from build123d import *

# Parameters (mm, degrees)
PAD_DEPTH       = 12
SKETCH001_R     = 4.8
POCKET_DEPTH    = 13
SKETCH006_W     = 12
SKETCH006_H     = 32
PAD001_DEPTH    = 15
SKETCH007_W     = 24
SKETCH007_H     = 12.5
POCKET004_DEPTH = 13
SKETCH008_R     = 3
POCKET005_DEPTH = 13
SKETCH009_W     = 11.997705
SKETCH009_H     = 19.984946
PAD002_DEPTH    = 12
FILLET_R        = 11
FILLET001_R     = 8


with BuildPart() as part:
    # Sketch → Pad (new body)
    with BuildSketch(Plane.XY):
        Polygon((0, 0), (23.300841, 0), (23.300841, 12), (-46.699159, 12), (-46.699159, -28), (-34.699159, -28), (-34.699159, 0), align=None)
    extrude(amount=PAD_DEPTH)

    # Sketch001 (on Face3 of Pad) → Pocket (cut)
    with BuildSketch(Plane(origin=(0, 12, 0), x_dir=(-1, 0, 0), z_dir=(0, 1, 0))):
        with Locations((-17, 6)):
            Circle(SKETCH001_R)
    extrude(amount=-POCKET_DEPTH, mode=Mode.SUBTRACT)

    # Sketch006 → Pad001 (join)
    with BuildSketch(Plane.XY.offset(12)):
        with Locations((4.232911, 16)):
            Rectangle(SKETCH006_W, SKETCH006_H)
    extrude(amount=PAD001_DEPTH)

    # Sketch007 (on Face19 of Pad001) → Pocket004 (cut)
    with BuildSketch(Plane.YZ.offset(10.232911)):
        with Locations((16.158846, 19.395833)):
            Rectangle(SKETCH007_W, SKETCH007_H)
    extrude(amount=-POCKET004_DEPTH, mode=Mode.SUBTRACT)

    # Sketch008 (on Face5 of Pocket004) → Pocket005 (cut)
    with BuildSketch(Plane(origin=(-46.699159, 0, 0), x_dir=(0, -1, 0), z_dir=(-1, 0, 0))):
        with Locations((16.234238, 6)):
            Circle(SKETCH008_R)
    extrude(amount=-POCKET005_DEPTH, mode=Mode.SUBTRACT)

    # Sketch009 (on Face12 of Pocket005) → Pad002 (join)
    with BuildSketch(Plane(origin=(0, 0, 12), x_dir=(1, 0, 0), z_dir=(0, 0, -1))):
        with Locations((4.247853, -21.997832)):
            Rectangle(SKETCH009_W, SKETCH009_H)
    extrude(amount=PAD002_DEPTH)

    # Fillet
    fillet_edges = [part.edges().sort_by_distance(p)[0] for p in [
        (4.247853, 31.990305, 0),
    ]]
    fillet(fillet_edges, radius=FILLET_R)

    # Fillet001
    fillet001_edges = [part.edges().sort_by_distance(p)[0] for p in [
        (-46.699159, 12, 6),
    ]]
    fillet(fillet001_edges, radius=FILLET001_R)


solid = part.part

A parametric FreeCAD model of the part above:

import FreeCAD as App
import Part
import Sketcher


def edges_at(feature, points):
    """Names of the edges that pass closest to the given points."""
    edges = feature.Shape.Edges
    near = lambda p: min(range(len(edges)), key=lambda i: edges[i].distToShape(Part.Vertex(*p))[0])
    return sorted({f"Edge{near(p) + 1}" for p in points})


def add_polygon(sketch, points):
    """Adds a closed chain of lines whose ends are joined by coincident constraints."""
    first, n = sketch.GeometryCount, len(points)
    for a, b in zip(points, points[1:] + points[:1]):
        sketch.addGeometry(Part.LineSegment(App.Vector(*a, 0), App.Vector(*b, 0)), False)
    for i in range(n):
        sketch.addConstraint(Sketcher.Constraint("Coincident", first + i, 2, first + (i + 1) % n, 1))

doc = App.newDocument("Part")
body = doc.addObject("PartDesign::Body", "Body")

sketch1 = body.newObject("Sketcher::SketchObject", "Sketch")
sketch1.AttachmentSupport = (doc.getObject("XY_Plane"), [""])
sketch1.MapMode = "FlatFace"
add_polygon(sketch1, [(23.300841, 0), (23.300841, 12), (-46.699159, 12), (-46.699159, -28), (-34.699159, -28), (-34.699159, 0)])
sketch1.addConstraint([
    Sketcher.Constraint("Vertical", 0),
    Sketcher.Constraint("Horizontal", 1),
    Sketcher.Constraint("Vertical", 2),
    Sketcher.Constraint("Horizontal", 3),
    Sketcher.Constraint("Vertical", 4),
    Sketcher.Constraint("Horizontal", 5),
    Sketcher.Constraint("PointOnObject", 4, 2, -1),
    Sketcher.Constraint("Equal", 3, 0),
    Sketcher.Constraint("DistanceX", 1, 2, 1, 1, 70.0),
    Sketcher.Constraint("DistanceX", 3, 1, 3, 2, 12.0),
    Sketcher.Constraint("DistanceY", 2, 2, 2, 1, 40.0),
    Sketcher.Constraint("DistanceX", -1, 1, 0, 2, 23.300841),
])
pad1 = body.newObject("PartDesign::Pad", "Pad")
pad1.Profile = sketch1
pad1.Length = 12

sketch2 = body.newObject("Sketcher::SketchObject", "Sketch001")
sketch2.AttachmentSupport = (doc.getObject("XZ_Plane"), [""])
sketch2.MapMode = "FlatFace"
sketch2.AttachmentOffset = App.Placement(App.Vector(0, 0, -12), App.Rotation())
sketch2.addGeometry(Part.Circle(App.Vector(17, 6, 0), App.Vector(0, 0, 1), 4.8), False)
sketch2.addConstraint([
    Sketcher.Constraint("Diameter", 0, 9.6),
    Sketcher.Constraint("DistanceX", -1, 1, 0, 3, 17.0),
    Sketcher.Constraint("DistanceY", -1, 1, 0, 3, 6.0),
])
pocket1 = body.newObject("PartDesign::Pocket", "Pocket")
pocket1.Profile = sketch2
pocket1.Length = 13
pocket1.Reversed = True

sketch3 = body.newObject("Sketcher::SketchObject", "Sketch002")
sketch3.AttachmentSupport = (doc.getObject("XY_Plane"), [""])
sketch3.MapMode = "FlatFace"
sketch3.AttachmentOffset = App.Placement(App.Vector(0, 0, 12), App.Rotation())
add_polygon(sketch3, [(-1.767089, 32), (-1.767089, 0), (10.232911, 0), (10.232911, 32)])
sketch3.addConstraint([
    Sketcher.Constraint("Vertical", 0),
    Sketcher.Constraint("Horizontal", 1),
    Sketcher.Constraint("Vertical", 2),
    Sketcher.Constraint("Horizontal", 3),
    Sketcher.Constraint("PointOnObject", 0, 2, -1),
    Sketcher.Constraint("DistanceX", 1, 1, 1, 2, 12.0),
    Sketcher.Constraint("DistanceY", 0, 2, 0, 1, 32.0),
    Sketcher.Constraint("DistanceX", 0, 2, -1, 1, 1.767089),
])
pad2 = body.newObject("PartDesign::Pad", "Pad001")
pad2.Profile = sketch3
pad2.Length = 15

sketch4 = body.newObject("Sketcher::SketchObject", "Sketch003")
sketch4.AttachmentSupport = (doc.getObject("YZ_Plane"), [""])
sketch4.MapMode = "FlatFace"
sketch4.AttachmentOffset = App.Placement(App.Vector(0, 0, 10.232911), App.Rotation())
add_polygon(sketch4, [(4.158846, 25.645833), (4.158846, 13.145833), (28.158846, 13.145833), (28.158846, 25.645833)])
sketch4.addConstraint([
    Sketcher.Constraint("Vertical", 0),
    Sketcher.Constraint("Horizontal", 1),
    Sketcher.Constraint("Vertical", 2),
    Sketcher.Constraint("Horizontal", 3),
    Sketcher.Constraint("DistanceX", 1, 1, 1, 2, 24.0),
    Sketcher.Constraint("DistanceY", 0, 2, 0, 1, 12.5),
    Sketcher.Constraint("DistanceX", -1, 1, 0, 2, 4.158846),
    Sketcher.Constraint("DistanceY", -1, 1, 0, 2, 13.145833),
])
pocket2 = body.newObject("PartDesign::Pocket", "Pocket001")
pocket2.Profile = sketch4
pocket2.Length = 13

sketch5 = body.newObject("Sketcher::SketchObject", "Sketch004")
sketch5.AttachmentSupport = (doc.getObject("YZ_Plane"), [""])
sketch5.MapMode = "FlatFace"
sketch5.AttachmentOffset = App.Placement(App.Vector(0, 0, -46.699159), App.Rotation())
sketch5.addGeometry(Part.Circle(App.Vector(-16.234238, 6, 0), App.Vector(0, 0, 1), 3), False)
sketch5.addConstraint([
    Sketcher.Constraint("Diameter", 0, 6.0),
    Sketcher.Constraint("DistanceY", -1, 1, 0, 3, 6.0),
    Sketcher.Constraint("DistanceX", 0, 3, -1, 1, 16.234238),
])
pocket3 = body.newObject("PartDesign::Pocket", "Pocket002")
pocket3.Profile = sketch5
pocket3.Length = 13
pocket3.Reversed = True

sketch6 = body.newObject("Sketcher::SketchObject", "Sketch005")
sketch6.AttachmentSupport = (doc.getObject("XY_Plane"), [""])
sketch6.MapMode = "FlatFace"
sketch6.AttachmentOffset = App.Placement(App.Vector(0, 0, 12), App.Rotation())
add_polygon(sketch6, [(-1.751, 12.005359), (-1.751, 31.990305), (10.246705, 31.990305), (10.246705, 12.005359)])
sketch6.addConstraint([
    Sketcher.Constraint("Vertical", 0),
    Sketcher.Constraint("Horizontal", 1),
    Sketcher.Constraint("Vertical", 2),
    Sketcher.Constraint("Horizontal", 3),
    Sketcher.Constraint("DistanceX", 0, 2, -1, 1, 1.751),
    Sketcher.Constraint("DistanceX", 1, 1, 1, 2, 11.997705),
    Sketcher.Constraint("DistanceY", 0, 1, 0, 2, 19.984946),
    Sketcher.Constraint("DistanceY", -1, 1, 2, 2, 12.005359),
])
pad3 = body.newObject("PartDesign::Pad", "Pad002")
pad3.Profile = sketch6
pad3.Length = 12
pad3.Reversed = True
doc.recompute()

fillet = body.newObject("PartDesign::Fillet", "Fillet")
fillet.Base = (pad3, edges_at(pad3, [(4.248, 31.99, 0)]))
fillet.Radius = 11
doc.recompute()

fillet2 = body.newObject("PartDesign::Fillet", "Fillet001")
fillet2.Base = (fillet, edges_at(fillet, [(-46.699, 12, 6)]))
fillet2.Radius = 8

doc.recompute()
